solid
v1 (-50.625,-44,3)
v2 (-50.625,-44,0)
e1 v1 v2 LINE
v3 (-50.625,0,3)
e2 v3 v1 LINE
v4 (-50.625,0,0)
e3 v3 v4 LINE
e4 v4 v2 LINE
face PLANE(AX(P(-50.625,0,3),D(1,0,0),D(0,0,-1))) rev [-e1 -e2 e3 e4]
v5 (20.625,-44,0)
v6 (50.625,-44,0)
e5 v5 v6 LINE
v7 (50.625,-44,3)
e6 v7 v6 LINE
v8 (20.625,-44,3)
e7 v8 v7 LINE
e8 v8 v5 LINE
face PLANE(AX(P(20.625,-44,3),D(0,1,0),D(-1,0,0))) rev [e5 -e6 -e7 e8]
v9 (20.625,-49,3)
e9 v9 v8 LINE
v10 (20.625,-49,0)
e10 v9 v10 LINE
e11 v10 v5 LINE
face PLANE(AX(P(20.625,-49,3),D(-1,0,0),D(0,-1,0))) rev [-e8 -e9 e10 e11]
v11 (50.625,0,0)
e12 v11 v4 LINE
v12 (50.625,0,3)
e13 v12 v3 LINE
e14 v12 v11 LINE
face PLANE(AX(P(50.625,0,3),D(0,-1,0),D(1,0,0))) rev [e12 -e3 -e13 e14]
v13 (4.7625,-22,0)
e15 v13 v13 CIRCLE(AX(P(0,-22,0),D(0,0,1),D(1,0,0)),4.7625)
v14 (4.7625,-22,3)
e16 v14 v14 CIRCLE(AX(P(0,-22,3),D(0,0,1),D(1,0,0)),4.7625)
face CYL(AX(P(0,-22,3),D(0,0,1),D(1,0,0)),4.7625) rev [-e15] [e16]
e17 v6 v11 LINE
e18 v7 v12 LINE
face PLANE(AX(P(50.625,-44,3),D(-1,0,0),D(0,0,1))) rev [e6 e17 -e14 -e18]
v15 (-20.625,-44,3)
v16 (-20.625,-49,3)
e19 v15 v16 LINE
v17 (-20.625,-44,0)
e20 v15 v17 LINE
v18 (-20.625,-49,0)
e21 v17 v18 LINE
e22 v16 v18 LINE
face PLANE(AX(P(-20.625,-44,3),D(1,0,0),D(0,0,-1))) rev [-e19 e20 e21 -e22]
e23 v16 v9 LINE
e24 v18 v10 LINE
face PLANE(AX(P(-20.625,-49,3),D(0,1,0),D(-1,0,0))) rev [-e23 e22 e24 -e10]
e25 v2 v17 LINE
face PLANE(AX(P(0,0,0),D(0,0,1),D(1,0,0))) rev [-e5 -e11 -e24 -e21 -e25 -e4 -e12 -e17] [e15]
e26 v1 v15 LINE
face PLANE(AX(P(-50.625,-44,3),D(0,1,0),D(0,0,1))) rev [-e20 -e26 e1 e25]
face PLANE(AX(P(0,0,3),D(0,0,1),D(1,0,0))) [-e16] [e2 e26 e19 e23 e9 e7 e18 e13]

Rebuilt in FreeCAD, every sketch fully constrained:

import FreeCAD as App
import Part
import Sketcher
from FreeCAD import Vector

doc = App.newDocument("Part")
body = doc.addObject("PartDesign::Body", "Body")

sketch1 = body.newObject("Sketcher::SketchObject", "Sketch")
sketch1.AttachmentSupport = (doc.getObject("XY_Plane"), [""])
sketch1.MapMode = "FlatFace"
sketch1.addGeometry([
    Part.LineSegment(Vector(-51, 0, 0), Vector(-51, -44, 0)),
    Part.LineSegment(Vector(-51, -44, 0), Vector(-21, -44, 0)),
    Part.LineSegment(Vector(-21, -44, 0), Vector(-21, -49, 0)),
    Part.LineSegment(Vector(-21, -49, 0), Vector(21, -49, 0)),
    Part.LineSegment(Vector(21, -49, 0), Vector(21, -44, 0)),
    Part.LineSegment(Vector(21, -44, 0), Vector(51, -44, 0)),
    Part.LineSegment(Vector(51, -44, 0), Vector(51, 0, 0)),
    Part.LineSegment(Vector(51, 0, 0), Vector(-51, 0, 0)),
], False)
sketch1.addConstraint([
    Sketcher.Constraint("Coincident", 0, 2, 1, 1),
    Sketcher.Constraint("Coincident", 1, 2, 2, 1),
    Sketcher.Constraint("Coincident", 2, 2, 3, 1),
    Sketcher.Constraint("Coincident", 3, 2, 4, 1),
    Sketcher.Constraint("Coincident", 4, 2, 5, 1),
    Sketcher.Constraint("Coincident", 5, 2, 6, 1),
    Sketcher.Constraint("Coincident", 6, 2, 7, 1),
    Sketcher.Constraint("Coincident", 7, 2, 0, 1),
    Sketcher.Constraint("Vertical", 0),
    Sketcher.Constraint("Horizontal", 1),
    Sketcher.Constraint("Vertical", 2),
    Sketcher.Constraint("Horizontal", 3),
    Sketcher.Constraint("Vertical", 4),
    Sketcher.Constraint("Horizontal", 5),
    Sketcher.Constraint("Vertical", 6),
    Sketcher.Constraint("Horizontal", 7),
    Sketcher.Constraint("Symmetric", 6, 2, 7, 2, -1, 1),
    Sketcher.Constraint("Symmetric", 1, 2, 4, 2, -2),
    Sketcher.Constraint("DistanceX", 1, 1, 1, 2, 30.0),
    Sketcher.Constraint("DistanceY", 0, 2, 0, 1, 44.0),
    Sketcher.Constraint("DistanceY", 2, 2, 2, 1, 5.0),
    Sketcher.Constraint("DistanceX", 3, 1, 3, 2, 41.25),
])
pad1 = body.newObject("PartDesign::Pad", "Pad")
pad1.Profile = sketch1
pad1.Length = 3

sketch2 = body.newObject("Sketcher::SketchObject", "Sketch001")
sketch2.AttachmentSupport = (doc.getObject("XY_Plane"), [""])
sketch2.MapMode = "FlatFace"
sketch2.AttachmentOffset = App.Placement(Vector(0, 0, 3), App.Rotation())
sketch2.addGeometry(Part.Circle(Vector(0, -22, 0), Vector(0, 0, 1), 4.8), False)
sketch2.addConstraint([
    Sketcher.Constraint("PointOnObject", 0, 3, -2),
    Sketcher.Constraint("Diameter", 0, 9.525),
    Sketcher.Constraint("DistanceY", 0, 3, -1, 1, 22.0),
])
doc.recompute()
hole = body.newObject("PartDesign::Hole", "Hole")
hole.Profile = sketch2
hole.ThreadType = "None"
hole.Diameter = 9.525
hole.DepthType = "ThroughAll"

doc.recompute()
